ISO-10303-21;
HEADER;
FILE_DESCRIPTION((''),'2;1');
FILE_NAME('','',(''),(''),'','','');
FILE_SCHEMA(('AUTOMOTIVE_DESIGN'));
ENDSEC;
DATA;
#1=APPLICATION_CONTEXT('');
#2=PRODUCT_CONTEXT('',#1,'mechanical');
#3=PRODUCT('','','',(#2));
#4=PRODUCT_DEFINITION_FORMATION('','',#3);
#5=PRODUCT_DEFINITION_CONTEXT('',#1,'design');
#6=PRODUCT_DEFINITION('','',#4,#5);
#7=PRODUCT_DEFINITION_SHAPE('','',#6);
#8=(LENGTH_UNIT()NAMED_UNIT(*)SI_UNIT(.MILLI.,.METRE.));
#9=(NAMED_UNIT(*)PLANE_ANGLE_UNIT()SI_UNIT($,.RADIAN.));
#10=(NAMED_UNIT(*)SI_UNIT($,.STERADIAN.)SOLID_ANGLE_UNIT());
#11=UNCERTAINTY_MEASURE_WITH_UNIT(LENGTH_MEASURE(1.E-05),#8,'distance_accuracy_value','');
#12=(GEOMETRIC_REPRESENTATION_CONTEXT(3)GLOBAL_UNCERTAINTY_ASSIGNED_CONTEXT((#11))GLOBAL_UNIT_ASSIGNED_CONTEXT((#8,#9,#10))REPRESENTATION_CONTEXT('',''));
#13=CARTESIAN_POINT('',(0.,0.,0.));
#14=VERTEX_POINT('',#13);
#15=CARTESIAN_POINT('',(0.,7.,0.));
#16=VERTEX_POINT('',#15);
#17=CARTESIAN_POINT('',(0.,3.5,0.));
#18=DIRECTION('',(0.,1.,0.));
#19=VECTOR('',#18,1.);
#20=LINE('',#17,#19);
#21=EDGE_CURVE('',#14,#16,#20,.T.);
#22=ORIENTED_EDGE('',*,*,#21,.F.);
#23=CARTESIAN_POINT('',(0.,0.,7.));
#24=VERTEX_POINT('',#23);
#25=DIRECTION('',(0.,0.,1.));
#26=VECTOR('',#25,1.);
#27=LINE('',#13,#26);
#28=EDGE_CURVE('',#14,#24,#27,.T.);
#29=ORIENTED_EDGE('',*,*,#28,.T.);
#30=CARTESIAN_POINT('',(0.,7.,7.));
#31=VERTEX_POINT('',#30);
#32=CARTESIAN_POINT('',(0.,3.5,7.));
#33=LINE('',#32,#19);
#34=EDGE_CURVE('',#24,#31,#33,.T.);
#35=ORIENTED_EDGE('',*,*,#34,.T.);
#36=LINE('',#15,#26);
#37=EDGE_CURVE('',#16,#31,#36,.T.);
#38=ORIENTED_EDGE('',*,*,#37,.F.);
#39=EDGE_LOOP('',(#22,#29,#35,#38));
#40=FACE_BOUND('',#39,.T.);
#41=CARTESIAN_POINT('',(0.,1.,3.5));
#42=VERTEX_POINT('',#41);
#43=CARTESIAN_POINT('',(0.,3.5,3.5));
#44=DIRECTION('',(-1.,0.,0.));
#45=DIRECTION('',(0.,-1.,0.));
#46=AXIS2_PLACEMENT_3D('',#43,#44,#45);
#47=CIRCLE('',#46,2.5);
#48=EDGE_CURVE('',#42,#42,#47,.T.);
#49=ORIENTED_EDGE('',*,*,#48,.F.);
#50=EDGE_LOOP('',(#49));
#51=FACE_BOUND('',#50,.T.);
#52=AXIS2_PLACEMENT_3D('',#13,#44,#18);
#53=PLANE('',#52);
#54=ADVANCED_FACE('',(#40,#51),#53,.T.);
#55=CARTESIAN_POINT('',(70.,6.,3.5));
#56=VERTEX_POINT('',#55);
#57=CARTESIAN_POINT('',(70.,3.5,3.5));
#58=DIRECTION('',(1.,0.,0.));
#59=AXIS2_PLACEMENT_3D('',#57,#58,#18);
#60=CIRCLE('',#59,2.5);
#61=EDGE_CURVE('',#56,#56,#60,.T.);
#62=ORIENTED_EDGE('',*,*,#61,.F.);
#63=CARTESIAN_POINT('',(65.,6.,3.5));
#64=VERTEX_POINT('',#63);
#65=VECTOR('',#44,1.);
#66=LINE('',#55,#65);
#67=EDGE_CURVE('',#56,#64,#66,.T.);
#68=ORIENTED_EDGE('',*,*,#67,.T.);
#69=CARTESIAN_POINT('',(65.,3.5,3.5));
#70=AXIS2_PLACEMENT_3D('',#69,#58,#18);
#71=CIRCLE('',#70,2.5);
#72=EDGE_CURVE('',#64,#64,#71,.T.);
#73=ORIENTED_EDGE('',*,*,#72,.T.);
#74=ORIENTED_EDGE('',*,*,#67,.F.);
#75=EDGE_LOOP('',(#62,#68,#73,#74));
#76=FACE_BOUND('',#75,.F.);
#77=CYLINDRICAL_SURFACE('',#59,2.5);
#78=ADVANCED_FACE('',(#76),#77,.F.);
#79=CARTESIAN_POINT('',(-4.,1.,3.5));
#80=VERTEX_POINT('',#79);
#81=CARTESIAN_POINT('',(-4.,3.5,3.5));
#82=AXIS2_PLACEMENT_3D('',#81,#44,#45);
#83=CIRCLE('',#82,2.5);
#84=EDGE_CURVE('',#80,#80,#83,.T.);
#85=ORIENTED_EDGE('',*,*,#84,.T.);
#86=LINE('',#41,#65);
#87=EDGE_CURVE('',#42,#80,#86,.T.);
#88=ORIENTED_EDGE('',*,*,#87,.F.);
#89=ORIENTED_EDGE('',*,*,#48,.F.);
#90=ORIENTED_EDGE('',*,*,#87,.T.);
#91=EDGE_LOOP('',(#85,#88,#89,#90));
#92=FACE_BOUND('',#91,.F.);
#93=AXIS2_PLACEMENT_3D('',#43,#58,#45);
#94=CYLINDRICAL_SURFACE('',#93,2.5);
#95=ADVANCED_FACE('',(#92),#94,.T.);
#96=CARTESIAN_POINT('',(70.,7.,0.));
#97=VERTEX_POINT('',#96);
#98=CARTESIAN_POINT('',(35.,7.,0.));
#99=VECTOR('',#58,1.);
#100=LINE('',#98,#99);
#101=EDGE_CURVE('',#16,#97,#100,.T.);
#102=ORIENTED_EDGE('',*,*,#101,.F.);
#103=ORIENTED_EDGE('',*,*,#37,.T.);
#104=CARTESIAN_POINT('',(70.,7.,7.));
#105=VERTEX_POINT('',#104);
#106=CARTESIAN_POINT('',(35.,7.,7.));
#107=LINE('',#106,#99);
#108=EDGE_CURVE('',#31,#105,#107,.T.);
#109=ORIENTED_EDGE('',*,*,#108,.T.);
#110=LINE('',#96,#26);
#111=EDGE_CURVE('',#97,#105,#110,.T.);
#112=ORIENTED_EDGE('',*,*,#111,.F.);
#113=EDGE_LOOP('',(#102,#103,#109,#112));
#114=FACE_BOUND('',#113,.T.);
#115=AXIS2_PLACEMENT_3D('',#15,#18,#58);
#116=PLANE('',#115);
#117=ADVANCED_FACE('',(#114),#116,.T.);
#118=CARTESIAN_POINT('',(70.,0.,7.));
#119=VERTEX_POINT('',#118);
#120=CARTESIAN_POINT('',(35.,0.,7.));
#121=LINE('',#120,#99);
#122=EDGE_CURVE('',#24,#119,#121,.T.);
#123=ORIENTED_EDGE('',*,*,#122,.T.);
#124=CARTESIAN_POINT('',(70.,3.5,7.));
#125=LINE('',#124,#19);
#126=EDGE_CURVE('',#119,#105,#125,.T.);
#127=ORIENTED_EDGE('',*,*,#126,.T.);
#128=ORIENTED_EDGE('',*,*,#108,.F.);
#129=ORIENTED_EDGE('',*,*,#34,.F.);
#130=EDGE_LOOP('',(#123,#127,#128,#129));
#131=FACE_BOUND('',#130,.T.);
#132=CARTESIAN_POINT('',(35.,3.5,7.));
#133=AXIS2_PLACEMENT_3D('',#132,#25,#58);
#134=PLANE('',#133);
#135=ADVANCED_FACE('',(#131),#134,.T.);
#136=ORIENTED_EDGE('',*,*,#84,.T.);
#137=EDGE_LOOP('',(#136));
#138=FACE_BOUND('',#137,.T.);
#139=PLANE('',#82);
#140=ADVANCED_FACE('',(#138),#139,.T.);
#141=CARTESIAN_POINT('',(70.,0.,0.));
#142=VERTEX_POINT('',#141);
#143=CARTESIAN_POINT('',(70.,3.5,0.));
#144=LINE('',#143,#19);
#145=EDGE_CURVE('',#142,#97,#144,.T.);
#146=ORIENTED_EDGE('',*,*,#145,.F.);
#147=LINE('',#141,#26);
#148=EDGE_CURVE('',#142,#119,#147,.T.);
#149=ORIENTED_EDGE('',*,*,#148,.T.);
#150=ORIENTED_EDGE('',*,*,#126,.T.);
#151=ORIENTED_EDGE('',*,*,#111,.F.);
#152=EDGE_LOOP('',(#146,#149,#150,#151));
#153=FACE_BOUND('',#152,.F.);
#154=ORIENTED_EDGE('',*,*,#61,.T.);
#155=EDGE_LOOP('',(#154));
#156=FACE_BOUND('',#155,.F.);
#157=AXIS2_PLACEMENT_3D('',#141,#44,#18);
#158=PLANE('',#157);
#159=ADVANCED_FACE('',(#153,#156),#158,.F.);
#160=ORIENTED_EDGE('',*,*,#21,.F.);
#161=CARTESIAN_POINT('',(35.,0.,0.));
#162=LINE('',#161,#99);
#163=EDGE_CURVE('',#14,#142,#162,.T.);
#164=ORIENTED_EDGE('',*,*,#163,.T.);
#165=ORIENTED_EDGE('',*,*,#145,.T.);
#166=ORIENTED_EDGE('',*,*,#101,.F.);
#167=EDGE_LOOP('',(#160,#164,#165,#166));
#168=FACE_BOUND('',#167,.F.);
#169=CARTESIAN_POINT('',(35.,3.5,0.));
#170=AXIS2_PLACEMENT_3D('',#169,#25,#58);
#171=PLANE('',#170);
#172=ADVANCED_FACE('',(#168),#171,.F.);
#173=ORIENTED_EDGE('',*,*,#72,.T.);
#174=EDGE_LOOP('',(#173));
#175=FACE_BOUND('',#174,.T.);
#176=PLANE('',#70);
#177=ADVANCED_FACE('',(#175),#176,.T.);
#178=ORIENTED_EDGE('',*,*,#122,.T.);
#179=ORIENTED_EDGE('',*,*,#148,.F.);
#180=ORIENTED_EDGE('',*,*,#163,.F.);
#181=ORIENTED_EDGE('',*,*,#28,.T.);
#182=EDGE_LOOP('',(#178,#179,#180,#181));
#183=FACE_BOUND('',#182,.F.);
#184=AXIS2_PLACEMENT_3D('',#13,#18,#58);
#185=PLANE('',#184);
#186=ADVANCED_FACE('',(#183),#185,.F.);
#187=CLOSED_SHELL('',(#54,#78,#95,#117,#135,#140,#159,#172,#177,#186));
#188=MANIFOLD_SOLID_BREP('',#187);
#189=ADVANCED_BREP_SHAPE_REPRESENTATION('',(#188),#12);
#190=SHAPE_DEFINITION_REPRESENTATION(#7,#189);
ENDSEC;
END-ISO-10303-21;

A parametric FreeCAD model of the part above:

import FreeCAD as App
import Part
import Sketcher

doc = App.newDocument("Part")
body = doc.addObject("PartDesign::Body", "Body")

# Sketch on XY plane
sketch1 = doc.addObject("Sketcher::SketchObject", "Sketch")
body.addObject(sketch1)
sketch1.AttachmentSupport = (doc.XY_Plane, [""])
sketch1.MapMode = "FlatFace"
sketch1.addGeometry([
    Part.LineSegment(App.Vector(0, 7, 0), App.Vector(0, 0, 0)),
    Part.LineSegment(App.Vector(0, 0, 0), App.Vector(70, 0, 0)),
    Part.LineSegment(App.Vector(70, 0, 0), App.Vector(70, 7, 0)),
    Part.LineSegment(App.Vector(70, 7, 0), App.Vector(0, 7, 0)),
], False)
sketch1.addConstraint([
    Sketcher.Constraint("Coincident", 0, 2, 1, 1),
    Sketcher.Constraint("Coincident", 1, 2, 2, 1),
    Sketcher.Constraint("Coincident", 2, 2, 3, 1),
    Sketcher.Constraint("Coincident", 3, 2, 0, 1),
    Sketcher.Constraint("Vertical", 0),
    Sketcher.Constraint("Horizontal", 1),
    Sketcher.Constraint("Vertical", 2),
    Sketcher.Constraint("Horizontal", 3),
    Sketcher.Constraint("Coincident", 0, 2, -1, 1),
    Sketcher.Constraint("DistanceX", 1, 1, 1, 2, 70.0),
    Sketcher.Constraint("DistanceY", 0, 2, 0, 1, 7.0),
])
pad1 = doc.addObject("PartDesign::Pad", "Pad")
body.addObject(pad1)
pad1.Profile = sketch1
pad1.Length = 7

# Sketch on YZ plane
sketch2 = doc.addObject("Sketcher::SketchObject", "Sketch001")
body.addObject(sketch2)
sketch2.AttachmentSupport = (doc.YZ_Plane, [""])
sketch2.MapMode = "FlatFace"
sketch2.AttachmentOffset = App.Placement(App.Vector(0, 0, 70), App.Rotation())
sketch2.addGeometry(Part.Circle(App.Vector(3.5, 3.5, 0), App.Vector(0, 0, 1), 2.5), False)
sketch2.addConstraint([
    Sketcher.Constraint("Diameter", 0, 5.0),
    Sketcher.Constraint("DistanceX", -1, 1, 0, 3, 3.5),
    Sketcher.Constraint("DistanceY", -1, 1, 0, 3, 3.5),
])
pocket1 = doc.addObject("PartDesign::Pocket", "Pocket")
body.addObject(pocket1)
pocket1.Profile = sketch2
pocket1.Length = 5

# Sketch on YZ plane
sketch3 = doc.addObject("Sketcher::SketchObject", "Sketch002")
body.addObject(sketch3)
sketch3.AttachmentSupport = (doc.YZ_Plane, [""])
sketch3.MapMode = "FlatFace"
sketch3.addGeometry(Part.Circle(App.Vector(3.5, 3.5, 0), App.Vector(0, 0, 1), 2.5), False)
sketch3.addConstraint([
    Sketcher.Constraint("Diameter", 0, 5.0),
    Sketcher.Constraint("DistanceX", -1, 1, 0, 3, 3.5),
    Sketcher.Constraint("DistanceY", -1, 1, 0, 3, 3.5),
])
pad2 = doc.addObject("PartDesign::Pad", "Pad001")
body.addObject(pad2)
pad2.Profile = sketch3
pad2.Length = 4
pad2.Reversed = True

doc.recompute()
